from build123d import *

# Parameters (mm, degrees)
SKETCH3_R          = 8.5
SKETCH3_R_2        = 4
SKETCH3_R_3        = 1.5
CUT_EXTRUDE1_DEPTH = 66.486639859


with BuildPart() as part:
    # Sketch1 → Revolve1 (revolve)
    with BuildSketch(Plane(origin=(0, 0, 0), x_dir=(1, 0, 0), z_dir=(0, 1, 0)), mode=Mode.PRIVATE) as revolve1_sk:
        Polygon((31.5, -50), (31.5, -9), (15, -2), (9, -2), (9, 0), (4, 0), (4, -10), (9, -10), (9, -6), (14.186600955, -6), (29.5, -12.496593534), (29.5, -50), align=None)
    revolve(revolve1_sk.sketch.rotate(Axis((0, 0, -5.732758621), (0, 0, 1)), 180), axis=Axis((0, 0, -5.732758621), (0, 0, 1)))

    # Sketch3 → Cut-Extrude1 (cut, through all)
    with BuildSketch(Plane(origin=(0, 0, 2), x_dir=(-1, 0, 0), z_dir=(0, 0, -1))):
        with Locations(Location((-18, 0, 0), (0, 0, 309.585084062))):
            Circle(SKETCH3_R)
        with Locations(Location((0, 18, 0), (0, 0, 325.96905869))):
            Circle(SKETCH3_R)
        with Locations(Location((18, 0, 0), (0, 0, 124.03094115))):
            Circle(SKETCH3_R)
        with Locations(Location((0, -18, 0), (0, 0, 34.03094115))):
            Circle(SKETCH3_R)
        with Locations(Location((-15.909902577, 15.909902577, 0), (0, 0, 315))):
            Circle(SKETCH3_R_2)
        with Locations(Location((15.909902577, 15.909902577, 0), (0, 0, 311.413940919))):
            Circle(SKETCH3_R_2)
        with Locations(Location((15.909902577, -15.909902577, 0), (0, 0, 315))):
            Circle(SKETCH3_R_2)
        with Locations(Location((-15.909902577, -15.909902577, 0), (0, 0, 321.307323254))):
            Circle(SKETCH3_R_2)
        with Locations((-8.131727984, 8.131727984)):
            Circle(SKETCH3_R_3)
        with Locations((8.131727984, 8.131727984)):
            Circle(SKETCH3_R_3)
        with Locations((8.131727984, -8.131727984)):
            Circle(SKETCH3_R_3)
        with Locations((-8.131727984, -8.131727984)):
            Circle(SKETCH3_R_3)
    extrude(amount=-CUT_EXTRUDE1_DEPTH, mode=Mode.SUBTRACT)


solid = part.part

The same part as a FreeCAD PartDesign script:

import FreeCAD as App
import Part
import Sketcher
from FreeCAD import Vector
Q = App.Units.Quantity


def add_polygon(sketch, points):
    """Adds a closed chain of lines whose ends are joined by coincident constraints."""
    first, n = sketch.GeometryCount, len(points)
    for a, b in zip(points, points[1:] + points[:1]):
        sketch.addGeometry(Part.LineSegment(App.Vector(*a, 0), App.Vector(*b, 0)), False)
    for i in range(n):
        sketch.addConstraint(Sketcher.Constraint("Coincident", first + i, 2, first + (i + 1) % n, 1))

doc = App.newDocument("Part")
body = doc.addObject("PartDesign::Body", "Body")

sketch1 = doc.addObject("Sketcher::SketchObject", "Sketch")
body.addObject(sketch1)
sketch1.AttachmentSupport = (doc.XZ_Plane, [""])
sketch1.MapMode = "FlatFace"
add_polygon(sketch1, [(31.5, 50), (31.5, 9), (15, 2), (9, 2), (9, 0), (4, 0), (4, 10), (9, 10), (9, 6), (14.2, 6), (29.5, 12.5), (29.5, 50)])
sketch1.addConstraint([
    Sketcher.Constraint("Vertical", 0),
    Sketcher.Constraint("Horizontal", 2),
    Sketcher.Constraint("Vertical", 3),
    Sketcher.Constraint("Horizontal", 4),
    Sketcher.Constraint("Vertical", 5),
    Sketcher.Constraint("Horizontal", 6),
    Sketcher.Constraint("Vertical", 7),
    Sketcher.Constraint("Horizontal", 8),
    Sketcher.Constraint("Vertical", 10),
    Sketcher.Constraint("Horizontal", 11),
    Sketcher.Constraint("PointOnObject", 3, 2, -1),
    Sketcher.Constraint("Parallel", 1, 9),
    Sketcher.Constraint("Vertical", 3, 2, 6, 2),
    Sketcher.Constraint("Equal", 11, 3),
    Sketcher.Constraint("DistanceX", 2, 2, 2, 1, Q("6 mm")),
    Sketcher.Constraint("DistanceX", 4, 2, 4, 1, Q("5 mm")),
    Sketcher.Constraint("DistanceX", 11, 1, 11, 2, Q("2 mm")),
    Sketcher.Constraint("DistanceY", 0, 2, 0, 1, Q("41 mm")),
    Sketcher.Constraint("DistanceY", 5, 1, 5, 2, Q("10 mm")),
    Sketcher.Constraint("DistanceY", 7, 2, 7, 1, Q("4 mm")),
    Sketcher.Constraint("DistanceY", -1, 1, 0, 2, Q("9 mm")),
    Sketcher.Constraint("DistanceX", -1, 1, 1, 2, Q("15 mm")),
    Sketcher.Constraint("DistanceX", -1, 1, 0, 2, Q("31.5 mm")),
    Sketcher.Constraint("DistanceX", 8, 1, 8, 2, Q("5.186601 mm")),
])
revolution = doc.addObject("PartDesign::Revolution", "Revolution")
body.addObject(revolution)
revolution.Profile = sketch1
revolution.ReferenceAxis = (sketch1, ["V_Axis"])
revolution.Angle = 360

sketch2 = doc.addObject("Sketcher::SketchObject", "Sketch001")
body.addObject(sketch2)
sketch2.AttachmentSupport = (doc.XY_Plane, [""])
sketch2.MapMode = "FlatFace"
sketch2.AttachmentOffset = App.Placement(Vector(0, 0, 2), App.Rotation())
sketch2.addGeometry([
    Part.Circle(Vector(18, 0, 0), Vector(0, 0, 1), 8.5),
    Part.Circle(Vector(0, 18, 0), Vector(0, 0, 1), 8.5),
    Part.Circle(Vector(-18, 0, 0), Vector(0, 0, 1), 8.5),
    Part.Circle(Vector(0, -18, 0), Vector(0, 0, 1), 8.5),
    Part.Circle(Vector(15.9, 15.9, 0), Vector(0, 0, 1), 4),
    Part.Circle(Vector(-15.9, 15.9, 0), Vector(0, 0, 1), 4),
    Part.Circle(Vector(-15.9, -15.9, 0), Vector(0, 0, 1), 4),
    Part.Circle(Vector(15.9, -15.9, 0), Vector(0, 0, 1), 4),
    Part.Circle(Vector(8.1, 8.1, 0), Vector(0, 0, 1), 1.5),
    Part.Circle(Vector(-8.1, 8.1, 0), Vector(0, 0, 1), 1.5),
    Part.Circle(Vector(-8.1, -8.1, 0), Vector(0, 0, 1), 1.5),
    Part.Circle(Vector(8.1, -8.1, 0), Vector(0, 0, 1), 1.5),
], False)
sketch2.addConstraint([
    Sketcher.Constraint("Equal", 0, 1),
    Sketcher.Constraint("Equal", 1, 2),
    Sketcher.Constraint("Equal", 2, 3),
    Sketcher.Constraint("Equal", 4, 5),
    Sketcher.Constraint("Equal", 5, 6),
    Sketcher.Constraint("Equal", 6, 7),
    Sketcher.Constraint("Equal", 8, 9),
    Sketcher.Constraint("Equal", 9, 10),
    Sketcher.Constraint("Equal", 10, 11),
    Sketcher.Constraint("Symmetric", 0, 3, 2, 3, -1, 1),
    Sketcher.Constraint("Symmetric", 1, 3, 3, 3, -1, 1),
    Sketcher.Constraint("Symmetric", 4, 3, 6, 3, -1, 1),
    Sketcher.Constraint("Symmetric", 5, 3, 7, 3, -1, 1),
    Sketcher.Constraint("Symmetric", 8, 3, 10, 3, -1, 1),
    Sketcher.Constraint("Symmetric", 9, 3, 11, 3, -1, 1),
    Sketcher.Constraint("Symmetric", 4, 3, 5, 3, -2),
    Sketcher.Constraint("Symmetric", 8, 3, 9, 3, -2),
    Sketcher.Constraint("PointOnObject", 0, 3, -1),
    Sketcher.Constraint("PointOnObject", 1, 3, -2),
    Sketcher.Constraint("Diameter", 0, Q("17 mm")),
    Sketcher.Constraint("Diameter", 4, Q("8 mm")),
    Sketcher.Constraint("Diameter", 8, Q("3 mm")),
    Sketcher.Constraint("DistanceX", -1, 1, 0, 3, Q("18 mm")),
    Sketcher.Constraint("DistanceY", -1, 1, 1, 3, Q("18 mm")),
    Sketcher.Constraint("DistanceX", 5, 3, 8, 3, Q("24.041631 mm")),
    Sketcher.Constraint("DistanceY", 7, 3, 8, 3, Q("24.041631 mm")),
    Sketcher.Constraint("DistanceX", -1, 1, 4, 3, Q("15.909903 mm")),
    Sketcher.Constraint("DistanceY", -1, 1, 4, 3, Q("15.909903 mm")),
])
pocket1 = doc.addObject("PartDesign::Pocket", "Pocket")
body.addObject(pocket1)
pocket1.Profile = sketch2
pocket1.Type = "ThroughAll"
pocket1.Reversed = True

doc.recompute()
